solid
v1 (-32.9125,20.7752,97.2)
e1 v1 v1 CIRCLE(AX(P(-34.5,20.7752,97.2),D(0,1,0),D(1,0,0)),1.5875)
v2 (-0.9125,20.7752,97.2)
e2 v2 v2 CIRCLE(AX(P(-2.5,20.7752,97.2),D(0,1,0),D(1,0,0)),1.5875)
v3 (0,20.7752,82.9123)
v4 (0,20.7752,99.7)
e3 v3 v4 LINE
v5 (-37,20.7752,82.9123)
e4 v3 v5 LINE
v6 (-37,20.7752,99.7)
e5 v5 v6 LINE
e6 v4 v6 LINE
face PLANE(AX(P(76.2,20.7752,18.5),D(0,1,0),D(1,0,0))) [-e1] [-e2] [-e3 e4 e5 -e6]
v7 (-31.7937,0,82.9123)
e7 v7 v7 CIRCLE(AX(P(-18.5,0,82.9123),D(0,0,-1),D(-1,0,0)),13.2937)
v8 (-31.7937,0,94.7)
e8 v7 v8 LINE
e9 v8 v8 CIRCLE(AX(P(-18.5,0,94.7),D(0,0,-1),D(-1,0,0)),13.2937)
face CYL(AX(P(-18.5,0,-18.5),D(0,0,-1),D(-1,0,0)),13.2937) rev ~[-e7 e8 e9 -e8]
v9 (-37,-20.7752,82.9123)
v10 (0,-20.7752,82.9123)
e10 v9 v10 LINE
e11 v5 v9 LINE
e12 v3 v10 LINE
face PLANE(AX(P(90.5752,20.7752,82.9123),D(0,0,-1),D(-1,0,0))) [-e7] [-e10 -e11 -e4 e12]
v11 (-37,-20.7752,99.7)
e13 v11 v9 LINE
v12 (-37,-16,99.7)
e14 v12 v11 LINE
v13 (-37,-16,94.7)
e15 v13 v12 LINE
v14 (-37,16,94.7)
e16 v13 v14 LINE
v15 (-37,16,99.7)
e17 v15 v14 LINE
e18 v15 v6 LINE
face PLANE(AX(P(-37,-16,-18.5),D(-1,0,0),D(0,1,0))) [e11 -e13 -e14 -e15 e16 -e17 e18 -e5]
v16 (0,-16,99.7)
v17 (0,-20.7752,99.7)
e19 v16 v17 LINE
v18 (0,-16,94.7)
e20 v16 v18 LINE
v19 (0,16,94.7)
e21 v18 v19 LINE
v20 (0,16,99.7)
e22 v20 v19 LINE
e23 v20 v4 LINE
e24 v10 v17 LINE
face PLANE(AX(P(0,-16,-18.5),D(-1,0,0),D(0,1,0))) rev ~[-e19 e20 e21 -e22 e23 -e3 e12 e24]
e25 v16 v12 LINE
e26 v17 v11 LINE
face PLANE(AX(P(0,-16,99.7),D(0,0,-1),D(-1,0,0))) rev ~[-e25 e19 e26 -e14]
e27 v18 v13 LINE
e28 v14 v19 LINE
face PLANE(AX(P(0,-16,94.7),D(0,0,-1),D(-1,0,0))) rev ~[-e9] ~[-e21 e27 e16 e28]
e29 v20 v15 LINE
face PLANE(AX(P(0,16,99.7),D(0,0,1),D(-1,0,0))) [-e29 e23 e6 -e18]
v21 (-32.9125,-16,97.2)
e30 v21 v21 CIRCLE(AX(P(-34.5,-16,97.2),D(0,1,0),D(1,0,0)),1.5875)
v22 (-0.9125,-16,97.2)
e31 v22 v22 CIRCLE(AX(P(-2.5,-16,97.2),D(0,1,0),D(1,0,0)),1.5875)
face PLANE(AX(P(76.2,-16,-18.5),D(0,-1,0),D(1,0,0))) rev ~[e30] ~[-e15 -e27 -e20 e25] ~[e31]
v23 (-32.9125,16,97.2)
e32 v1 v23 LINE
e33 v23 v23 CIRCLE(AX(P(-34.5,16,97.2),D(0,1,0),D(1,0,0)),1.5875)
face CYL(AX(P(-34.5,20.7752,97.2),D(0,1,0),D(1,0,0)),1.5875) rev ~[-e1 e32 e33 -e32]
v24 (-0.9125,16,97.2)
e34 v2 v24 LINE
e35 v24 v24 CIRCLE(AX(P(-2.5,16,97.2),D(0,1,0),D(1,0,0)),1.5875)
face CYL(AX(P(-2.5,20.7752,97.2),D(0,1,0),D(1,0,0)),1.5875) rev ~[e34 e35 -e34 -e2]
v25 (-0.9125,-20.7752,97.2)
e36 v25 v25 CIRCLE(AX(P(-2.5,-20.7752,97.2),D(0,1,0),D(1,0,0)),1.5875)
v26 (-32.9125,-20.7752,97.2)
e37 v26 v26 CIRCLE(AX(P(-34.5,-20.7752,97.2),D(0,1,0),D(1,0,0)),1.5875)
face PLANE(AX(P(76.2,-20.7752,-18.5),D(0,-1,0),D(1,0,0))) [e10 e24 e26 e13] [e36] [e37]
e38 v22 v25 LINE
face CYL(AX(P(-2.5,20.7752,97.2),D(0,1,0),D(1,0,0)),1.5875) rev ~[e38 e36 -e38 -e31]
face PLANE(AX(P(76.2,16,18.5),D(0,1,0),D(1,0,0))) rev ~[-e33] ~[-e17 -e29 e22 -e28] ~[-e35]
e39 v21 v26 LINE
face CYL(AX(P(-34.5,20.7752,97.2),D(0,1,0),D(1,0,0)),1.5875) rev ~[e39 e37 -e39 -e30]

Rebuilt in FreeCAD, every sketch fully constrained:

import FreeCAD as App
import Part
import Sketcher
Q = App.Units.Quantity

doc = App.newDocument("Part")
params = doc.addObject("Spreadsheet::Sheet", "Params")
for row, (alias, value) in enumerate([
    ("pad1_length", "3 in"),
    ("pad2_length", "4.4566929 in"),
    ("pad3_length", "1.4566929 in"),
    ("sketch4_length", "3 in"),
    ("pad4_length", "32 mm"),
    ("pocket1_length", "4 in"),
    ("pad5_length", "0.188 in"),
    ("pad6_length", "0.188 in"),
    ("sketch8_diameter", "0.125 in"),
    ("pocket2_length", "11 in"),
    ("sketch9_diameter", "0.125 in"),
    ("pocket3_length", "11 in"),
    ("sketch10_diameter", "0.125 in"),
    ("pocket4_length", "3 in"),
], start=1):
    params.set(f"A{row}", alias)
    params.set(f"B{row}", "=" + value)
    params.setAlias(f"B{row}", alias)

body = doc.addObject("PartDesign::Body", "Body")

sketch1 = body.newObject("Sketcher::SketchObject", "Sketch")
sketch1.AttachmentSupport = (doc.getObject("YZ_Plane"), [""])
sketch1.MapMode = "FlatFace"
sketch1.addGeometry([
    Part.LineSegment(App.Vector(-16, 18.5, 0), App.Vector(-16, -18.5, 0)),
    Part.LineSegment(App.Vector(-16, -18.5, 0), App.Vector(16, -18.5, 0)),
    Part.LineSegment(App.Vector(16, -18.5, 0), App.Vector(16, 18.5, 0)),
    Part.LineSegment(App.Vector(16, 18.5, 0), App.Vector(-16, 18.5, 0)),
    Part.Circle(App.Vector(0, 0, 0), App.Vector(0, 0, 1), 13.2937),
], False)
sketch1.addConstraint([
    Sketcher.Constraint("Coincident", 0, 2, 1, 1),
    Sketcher.Constraint("Coincident", 1, 2, 2, 1),
    Sketcher.Constraint("Coincident", 2, 2, 3, 1),
    Sketcher.Constraint("Coincident", 3, 2, 0, 1),
    Sketcher.Constraint("Vertical", 0),
    Sketcher.Constraint("Horizontal", 1),
    Sketcher.Constraint("Vertical", 2),
    Sketcher.Constraint("Horizontal", 3),
    Sketcher.Constraint("Coincident", 4, 3, -1, 1),
    Sketcher.Constraint("Symmetric", 0, 2, 2, 2, -1, 1),
    Sketcher.Constraint("Diameter", 4, 26.5874),
    Sketcher.Constraint("DistanceY", 0, 2, 0, 1, Q("1.4567 in")),
    Sketcher.Constraint("DistanceX", 1, 1, 1, 2, 32.0),
])
pad1 = body.newObject("PartDesign::Pad", "Pad")
pad1.Profile = sketch1
pad1.setExpression("Length", "Params.pad1_length")

sketch2 = body.newObject("Sketcher::SketchObject", "Sketch001")
sketch2.AttachmentSupport = (doc.getObject("XY_Plane"), [""])
sketch2.MapMode = "FlatFace"
sketch2.AttachmentOffset = App.Placement(App.Vector(0, 0, -18.5), App.Rotation())
sketch2.addGeometry([
    Part.LineSegment(App.Vector(0, 16, 0), App.Vector(0, -16, 0)),
    Part.LineSegment(App.Vector(0, -16, 0), App.Vector(-37, -16, 0)),
    Part.LineSegment(App.Vector(-37, -16, 0), App.Vector(-37, 16, 0)),
    Part.LineSegment(App.Vector(-37, 16, 0), App.Vector(0, 16, 0)),
    Part.Circle(App.Vector(-18.5, 0, 0), App.Vector(0, 0, 1), 13.2937),
], False)
sketch2.addConstraint([
    Sketcher.Constraint("Coincident", 0, 2, 1, 1),
    Sketcher.Constraint("Coincident", 1, 2, 2, 1),
    Sketcher.Constraint("Coincident", 2, 2, 3, 1),
    Sketcher.Constraint("Coincident", 3, 2, 0, 1),
    Sketcher.Constraint("Vertical", 0),
    Sketcher.Constraint("Horizontal", 1),
    Sketcher.Constraint("Vertical", 2),
    Sketcher.Constraint("Horizontal", 3),
    Sketcher.Constraint("Symmetric", 0, 2, 3, 2, -1, 1),
    Sketcher.Constraint("PointOnObject", 4, 3, -1),
    Sketcher.Constraint("Diameter", 4, 26.5874),
    Sketcher.Constraint("DistanceX", 1, 2, 1, 1, Q("1.4567 in")),
    Sketcher.Constraint("DistanceY", 0, 2, 0, 1, 32.0),
    Sketcher.Constraint("DistanceX", 4, 3, -1, 1, 18.5),
])
pad2 = body.newObject("PartDesign::Pad", "Pad001")
pad2.Profile = sketch2
pad2.setExpression("Length", "Params.pad2_length")

sketch3 = body.newObject("Sketcher::SketchObject", "Sketch002")
sketch3.AttachmentSupport = (doc.getObject("XY_Plane"), [""])
sketch3.MapMode = "FlatFace"
sketch3.AttachmentOffset = App.Placement(App.Vector(0, 0, -18.5), App.Rotation())
sketch3.addGeometry(Part.Circle(App.Vector(-18.5, 0, 0), App.Vector(0, 0, 1), 13.2937), False)
sketch3.addConstraint([
    Sketcher.Constraint("PointOnObject", 0, 3, -1),
    Sketcher.Constraint("Diameter", 0, 26.5874),
    Sketcher.Constraint("DistanceX", 0, 3, -1, 1, 18.5),
])
pad3 = body.newObject("PartDesign::Pad", "Pad002")
pad3.Profile = sketch3
pad3.setExpression("Length", "Params.pad3_length")

sketch4 = body.newObject("Sketcher::SketchObject", "Sketch003")
sketch4.AttachmentSupport = (doc.getObject("XZ_Plane"), [""])
sketch4.MapMode = "FlatFace"
sketch4.AttachmentOffset = App.Placement(App.Vector(0, 0, -16), App.Rotation())
sketch4.addGeometry([
    Part.LineSegment(App.Vector(-10.837, -18.5, 0), App.Vector(-23.9185, -31.5815, 0)),
    Part.LineSegment(App.Vector(-23.9185, -31.5815, 0), App.Vector(-77.8001, -85.463, 0)),
    Part.LineSegment(App.Vector(-77.8001, -85.463, 0), App.Vector(-103.963, -59.3001, 0)),
    Part.LineSegment(App.Vector(-103.963, -59.3001, 0), App.Vector(-50.0815, -5.4185, 0)),
    Part.LineSegment(App.Vector(-50.0815, -5.4185, 0), App.Vector(-37, 7.663, 0)),
    Part.LineSegment(App.Vector(-37, 7.663, 0), App.Vector(-37, -18.5, 0)),
    Part.LineSegment(App.Vector(-37, -18.5, 0), App.Vector(-10.837, -18.5, 0)),
], False)
sketch4.addConstraint([
    Sketcher.Constraint("Coincident", 0, 2, 1, 1),
    Sketcher.Constraint("Coincident", 1, 2, 2, 1),
    Sketcher.Constraint("Coincident", 2, 2, 3, 1),
    Sketcher.Constraint("Coincident", 3, 2, 4, 1),
    Sketcher.Constraint("Coincident", 4, 2, 5, 1),
    Sketcher.Constraint("Coincident", 5, 2, 6, 1),
    Sketcher.Constraint("Coincident", 6, 2, 0, 1),
    Sketcher.Constraint("Vertical", 5),
    Sketcher.Constraint("Horizontal", 6),
    Sketcher.Constraint("Parallel", 0, 1),
    Sketcher.Constraint("Perpendicular", 1, 2),
    Sketcher.Constraint("Perpendicular", 2, 3),
    Sketcher.Constraint("Parallel", 3, 4),
    Sketcher.Constraint("Equal", 6, 5),
    Sketcher.Constraint("Equal", 1, 3),
    Sketcher.Constraint("Equal", 0, 4),
    Sketcher.Constraint("Distance", 1, Q("3 in")),
    Sketcher.Constraint("Distance", 0, 18.5),
    Sketcher.Constraint("DistanceY", 5, 2, -1, 1, 18.5),
    Sketcher.Constraint("DistanceX", 1, 2, -1, 1, Q("3.063 in")),
    Sketcher.Constraint("Distance", 2, Q("1.4567 in")),
])
sketch4.setExpression("Constraints[16]", "Params.sketch4_length")
pad4 = body.newObject("PartDesign::Pad", "Pad003")
pad4.Profile = sketch4
pad4.setExpression("Length", "Params.pad4_length")

sketch5 = body.newObject("Sketcher::SketchObject", "Sketch004")
sketch5.Placement = App.Placement(App.Vector(-77.8001, -16, -85.463), App.Rotation(App.Vector(-0.707106781, 0, 0.707106781), App.Vector(0, 0.999999999, 0), App.Vector(-0.707106781, 0, -0.707106781), "ZXY"))
sketch5.addGeometry(Part.Circle(App.Vector(18.5, 16, 0), App.Vector(0, 0, 1), 13.2937), False)
sketch5.addConstraint([
    Sketcher.Constraint("Diameter", 0, 26.5874),
    Sketcher.Constraint("DistanceX", -1, 1, 0, 3, 18.5),
    Sketcher.Constraint("DistanceY", -1, 1, 0, 3, 16.0),
])
pocket1 = body.newObject("PartDesign::Pocket", "Pocket")
pocket1.Profile = sketch5
pocket1.setExpression("Length", "Params.pocket1_length")

sketch6 = body.newObject("Sketcher::SketchObject", "Sketch005")
sketch6.AttachmentSupport = (doc.getObject("XZ_Plane"), [""])
sketch6.MapMode = "FlatFace"
sketch6.AttachmentOffset = App.Placement(App.Vector(0, 0, -16), App.Rotation())
sketch6.addGeometry([
    Part.LineSegment(App.Vector(0, 18.5, 0), App.Vector(81.2, 18.5, 0)),
    Part.LineSegment(App.Vector(81.2, 18.5, 0), App.Vector(81.2, -18.5, 0)),
    Part.LineSegment(App.Vector(81.2, -18.5, 0), App.Vector(-10.837, -18.5, 0)),
    Part.LineSegment(App.Vector(-10.837, -18.5, 0), App.Vector(-77.8001, -85.463, 0)),
    Part.LineSegment(App.Vector(-77.8001, -85.463, 0), App.Vector(-81.3356, -88.9985, 0)),
    Part.LineSegment(App.Vector(-81.3356, -88.9985, 0), App.Vector(-107.4985, -62.8356, 0)),
    Part.LineSegment(App.Vector(-107.4985, -62.8356, 0), App.Vector(-103.963, -59.3001, 0)),
    Part.LineSegment(App.Vector(-103.963, -59.3001, 0), App.Vector(-37, 7.663, 0)),
    Part.LineSegment(App.Vector(-37, 7.663, 0), App.Vector(-37, 99.7, 0)),
    Part.LineSegment(App.Vector(-37, 99.7, 0), App.Vector(0, 99.7, 0)),
    Part.LineSegment(App.Vector(0, 99.7, 0), App.Vector(0, 18.5, 0)),
], False)
sketch6.addConstraint([
    Sketcher.Constraint("Coincident", 0, 2, 1, 1),
    Sketcher.Constraint("Coincident", 1, 2, 2, 1),
    Sketcher.Constraint("Coincident", 2, 2, 3, 1),
    Sketcher.Constraint("Coincident", 3, 2, 4, 1),
    Sketcher.Constraint("Coincident", 4, 2, 5, 1),
    Sketcher.Constraint("Coincident", 5, 2, 6, 1),
    Sketcher.Constraint("Coincident", 6, 2, 7, 1),
    Sketcher.Constraint("Coincident", 7, 2, 8, 1),
    Sketcher.Constraint("Coincident", 8, 2, 9, 1),
    Sketcher.Constraint("Coincident", 9, 2, 10, 1),
    Sketcher.Constraint("Coincident", 10, 2, 0, 1),
    Sketcher.Constraint("Horizontal", 0),
    Sketcher.Constraint("Vertical", 1),
    Sketcher.Constraint("Horizontal", 2),
    Sketcher.Constraint("Vertical", 8),
    Sketcher.Constraint("Horizontal", 9),
    Sketcher.Constraint("Vertical", 10),
    Sketcher.Constraint("PointOnObject", 9, 2, -2),
    Sketcher.Constraint("Parallel", 3, 4),
    Sketcher.Constraint("Perpendicular", 4, 5),
    Sketcher.Constraint("Perpendicular", 5, 6),
    Sketcher.Constraint("Parallel", 6, 7),
    Sketcher.Constraint("Equal", 9, 1),
    Sketcher.Constraint("Equal", 2, 8),
    Sketcher.Constraint("Equal", 0, 10),
    Sketcher.Constraint("Equal", 4, 6),
    Sketcher.Constraint("Equal", 3, 7),
    Sketcher.Constraint("Distance", 4, 5.0),
    Sketcher.Constraint("DistanceX", 2, 2, 2, 1, Q("3.6235 in")),
    Sketcher.Constraint("DistanceX", 9, 1, 9, 2, Q("1.4567 in")),
    Sketcher.Constraint("DistanceX", 3, 2, -1, 1, Q("3.063 in")),
    Sketcher.Constraint("Distance", 5, Q("1.4567 in")),
    Sketcher.Constraint("DistanceY", -1, 1, 7, 2, Q("0.3017 in")),
])
pad5 = body.newObject("PartDesign::Pad", "Pad004")
pad5.Profile = sketch6
pad5.setExpression("Length", "Params.pad5_length")
pad5.Reversed = True

sketch7 = body.newObject("Sketcher::SketchObject", "Sketch006")
sketch7.AttachmentSupport = (doc.getObject("XZ_Plane"), [""])
sketch7.MapMode = "FlatFace"
sketch7.AttachmentOffset = App.Placement(App.Vector(0, 0, 16), App.Rotation())
sketch7.addGeometry([
    Part.LineSegment(App.Vector(-77.8001, -85.463, 0), App.Vector(-10.837, -18.5, 0)),
    Part.LineSegment(App.Vector(-10.837, -18.5, 0), App.Vector(81.2, -18.5, 0)),
    Part.LineSegment(App.Vector(81.2, -18.5, 0), App.Vector(81.2, 18.5, 0)),
    Part.LineSegment(App.Vector(81.2, 18.5, 0), App.Vector(0, 18.5, 0)),
    Part.LineSegment(App.Vector(0, 18.5, 0), App.Vector(0, 99.7, 0)),
    Part.LineSegment(App.Vector(0, 99.7, 0), App.Vector(-37, 99.7, 0)),
    Part.LineSegment(App.Vector(-37, 99.7, 0), App.Vector(-37, 7.663, 0)),
    Part.LineSegment(App.Vector(-37, 7.663, 0), App.Vector(-103.963, -59.3001, 0)),
    Part.LineSegment(App.Vector(-103.963003, -59.300097, 0), App.Vector(-107.4985, -62.8356, 0)),
    Part.LineSegment(App.Vector(-107.4985, -62.8356, 0), App.Vector(-81.3356, -88.9985, 0)),
    Part.LineSegment(App.Vector(-81.3356, -88.9985, 0), App.Vector(-77.8001, -85.463, 0)),
], False)
sketch7.addConstraint([
    Sketcher.Constraint("Coincident", 0, 2, 1, 1),
    Sketcher.Constraint("Coincident", 1, 2, 2, 1),
    Sketcher.Constraint("Coincident", 2, 2, 3, 1),
    Sketcher.Constraint("Coincident", 3, 2, 4, 1),
    Sketcher.Constraint("Coincident", 4, 2, 5, 1),
    Sketcher.Constraint("Coincident", 5, 2, 6, 1),
    Sketcher.Constraint("Coincident", 6, 2, 7, 1),
    Sketcher.Constraint("Coincident", 7, 2, 8, 1),
    Sketcher.Constraint("Coincident", 8, 2, 9, 1),
    Sketcher.Constraint("Coincident", 9, 2, 10, 1),
    Sketcher.Constraint("Coincident", 10, 2, 0, 1),
    Sketcher.Constraint("Horizontal", 1),
    Sketcher.Constraint("Vertical", 2),
    Sketcher.Constraint("Horizontal", 3),
    Sketcher.Constraint("Vertical", 4),
    Sketcher.Constraint("Horizontal", 5),
    Sketcher.Constraint("Vertical", 6),
    Sketcher.Constraint("PointOnObject", 3, 2, -2),
    Sketcher.Constraint("Parallel", 0, 7),
    Sketcher.Constraint("Parallel", 7, 8),
    Sketcher.Constraint("Perpendicular", 8, 9),
    Sketcher.Constraint("Perpendicular", 9, 10),
    Sketcher.Constraint("Equal", 5, 2),
    Sketcher.Constraint("Equal", 3, 4),
    Sketcher.Constraint("Equal", 1, 6),
    Sketcher.Constraint("Equal", 0, 7),
    Sketcher.Constraint("Equal", 8, 10),
    Sketcher.Constraint("DistanceX", 1, 1, 1, 2, Q("3.6235 in")),
    Sketcher.Constraint("DistanceX", 5, 2, 5, 1, Q("1.4567 in")),
    Sketcher.Constraint("DistanceX", 10, 2, -1, 1, Q("3.063 in")),
    Sketcher.Constraint("Distance", 9, Q("1.4567 in")),
    Sketcher.Constraint("DistanceY", -1, 1, 4, 2, Q("3.9252 in")),
    Sketcher.Constraint("DistanceX", 9, 2, -1, 1, Q("3.2022 in")),
])
pad6 = body.newObject("PartDesign::Pad", "Pad005")
pad6.Profile = sketch7
pad6.setExpression("Length", "Params.pad6_length")

sketch8 = body.newObject("Sketcher::SketchObject", "Sketch007")
sketch8.AttachmentSupport = (doc.getObject("XZ_Plane"), [""])
sketch8.MapMode = "FlatFace"
sketch8.AttachmentOffset = App.Placement(App.Vector(0, 0, -20.7752), App.Rotation())
sketch8.addGeometry([
    Part.Circle(App.Vector(78.7, -16, 0), App.Vector(0, 0, 1), 1.5875),
    Part.Circle(App.Vector(78.7, 16, 0), App.Vector(0, 0, 1), 1.5875),
], False)
sketch8.addConstraint([
    Sketcher.Constraint("Equal", 0, 1),
    Sketcher.Constraint("Symmetric", 0, 3, 1, 3, -1),
    Sketcher.Constraint("Diameter", 0, Q("0.125 in")),
    Sketcher.Constraint("DistanceX", -1, 1, 0, 3, 78.7),
    Sketcher.Constraint("DistanceY", 0, 3, -1, 1, 16.0),
])
sketch8.setExpression("Constraints[2]", "Params.sketch8_diameter")
pocket2 = body.newObject("PartDesign::Pocket", "Pocket001")
pocket2.Profile = sketch8
pocket2.setExpression("Length", "Params.pocket2_length")
pocket2.Reversed = True

sketch9 = body.newObject("Sketcher::SketchObject", "Sketch008")
sketch9.AttachmentSupport = (doc.getObject("XZ_Plane"), [""])
sketch9.MapMode = "FlatFace"
sketch9.AttachmentOffset = App.Placement(App.Vector(0, 0, -20.7752), App.Rotation())
sketch9.addGeometry([
    Part.Circle(App.Vector(-2.5, 97.2, 0), App.Vector(0, 0, 1), 1.5875),
    Part.Circle(App.Vector(-34.5, 97.2, 0), App.Vector(0, 0, 1), 1.5875),
    Part.Circle(App.Vector(-81.3356, -85.463, 0), App.Vector(0, 0, 1), 1.5875),
    Part.Circle(App.Vector(-103.963, -62.8356, 0), App.Vector(0, 0, 1), 1.5875),
], False)
sketch9.addConstraint([
    Sketcher.Constraint("Equal", 0, 1),
    Sketcher.Constraint("Equal", 1, 2),
    Sketcher.Constraint("Equal", 2, 3),
    Sketcher.Constraint("Horizontal", 0, 3, 1, 3),
    Sketcher.Constraint("Diameter", 0, Q("0.125 in")),
    Sketcher.Constraint("DistanceX", 2, 3, -1, 1, Q("3.2022 in")),
    Sketcher.Constraint("DistanceX", 3, 3, 0, 3, Q("3.9946 in")),
    Sketcher.Constraint("DistanceX", 0, 3, -1, 1, 2.5),
    Sketcher.Constraint("DistanceY", -1, 1, 0, 3, 97.2),
    Sketcher.Constraint("DistanceX", 1, 3, -1, 1, 34.5),
    Sketcher.Constraint("DistanceY", 2, 3, -1, 1, 85.463),
    Sketcher.Constraint("DistanceY", 3, 3, -1, 1, 62.8356),
])
sketch9.setExpression("Constraints[4]", "Params.sketch9_diameter")
pocket3 = body.newObject("PartDesign::Pocket", "Pocket002")
pocket3.Profile = sketch9
pocket3.setExpression("Length", "Params.pocket3_length")
pocket3.Reversed = True

sketch10 = body.newObject("Sketcher::SketchObject", "Sketch009")
sketch10.AttachmentSupport = (doc.getObject("XZ_Plane"), [""])
sketch10.MapMode = "FlatFace"
sketch10.AttachmentOffset = App.Placement(App.Vector(0, 0, -20.7752), App.Rotation())
sketch10.addGeometry([
    Part.LineSegment(App.Vector(90.5752, -98.2224, 0), App.Vector(-128.5971, -98.2224, 0)),
    Part.LineSegment(App.Vector(-128.5971, -98.2224, 0), App.Vector(-128.5971, 82.9123, 0)),
    Part.LineSegment(App.Vector(-128.5971, 82.9123, 0), App.Vector(90.5752, 82.9123, 0)),
    Part.LineSegment(App.Vector(90.5752, 82.9123, 0), App.Vector(90.5752, -98.2224, 0)),
    Part.Circle(App.Vector(78.7, 16, 0), App.Vector(0, 0, 1), 1.5875),
    Part.Circle(App.Vector(-103.963, -62.8356, 0), App.Vector(0, 0, 1), 1.5875),
    Part.Circle(App.Vector(-81.3356, -85.463, 0), App.Vector(0, 0, 1), 1.5875),
    Part.Circle(App.Vector(78.7, -16, 0), App.Vector(0, 0, 1), 1.5875),
], False)
sketch10.addConstraint([
    Sketcher.Constraint("Coincident", 0, 2, 1, 1),
    Sketcher.Constraint("Coincident", 1, 2, 2, 1),
    Sketcher.Constraint("Coincident", 2, 2, 3, 1),
    Sketcher.Constraint("Coincident", 3, 2, 0, 1),
    Sketcher.Constraint("Horizontal", 0),
    Sketcher.Constraint("Vertical", 1),
    Sketcher.Constraint("Horizontal", 2),
    Sketcher.Constraint("Vertical", 3),
    Sketcher.Constraint("Equal", 4, 5),
    Sketcher.Constraint("Equal", 5, 6),
    Sketcher.Constraint("Equal", 6, 7),
    Sketcher.Constraint("Symmetric", 4, 3, 7, 3, -1),
    Sketcher.Constraint("Diameter", 4, Q("0.125 in")),
    Sketcher.Constraint("DistanceX", 0, 2, 0, 1, 219.1723),
    Sketcher.Constraint("DistanceY", 1, 1, 1, 2, 181.1347),
    Sketcher.Constraint("DistanceX", 6, 3, -1, 1, Q("3.2022 in")),
    Sketcher.Constraint("DistanceY", 6, 3, 4, 3, Q("3.9946 in")),
    Sketcher.Constraint("DistanceX", 0, 2, 6, 3, Q("1.8607 in")),
    Sketcher.Constraint("DistanceX", 0, 2, 7, 3, Q("8.1613 in")),
    Sketcher.Constraint("DistanceY", 0, 2, 7, 3, Q("3.2371 in")),
    Sketcher.Constraint("DistanceY", 5, 3, 1, 2, Q("5.7381 in")),
    Sketcher.Constraint("DistanceY", -1, 1, 4, 3, 16.0),
    Sketcher.Constraint("DistanceX", 5, 3, -1, 1, 103.963),
])
sketch10.setExpression("Constraints[12]", "Params.sketch10_diameter")
pocket4 = body.newObject("PartDesign::Pocket", "Pocket003")
pocket4.Profile = sketch10
pocket4.setExpression("Length", "Params.pocket4_length")
pocket4.Reversed = True

doc.recompute()
